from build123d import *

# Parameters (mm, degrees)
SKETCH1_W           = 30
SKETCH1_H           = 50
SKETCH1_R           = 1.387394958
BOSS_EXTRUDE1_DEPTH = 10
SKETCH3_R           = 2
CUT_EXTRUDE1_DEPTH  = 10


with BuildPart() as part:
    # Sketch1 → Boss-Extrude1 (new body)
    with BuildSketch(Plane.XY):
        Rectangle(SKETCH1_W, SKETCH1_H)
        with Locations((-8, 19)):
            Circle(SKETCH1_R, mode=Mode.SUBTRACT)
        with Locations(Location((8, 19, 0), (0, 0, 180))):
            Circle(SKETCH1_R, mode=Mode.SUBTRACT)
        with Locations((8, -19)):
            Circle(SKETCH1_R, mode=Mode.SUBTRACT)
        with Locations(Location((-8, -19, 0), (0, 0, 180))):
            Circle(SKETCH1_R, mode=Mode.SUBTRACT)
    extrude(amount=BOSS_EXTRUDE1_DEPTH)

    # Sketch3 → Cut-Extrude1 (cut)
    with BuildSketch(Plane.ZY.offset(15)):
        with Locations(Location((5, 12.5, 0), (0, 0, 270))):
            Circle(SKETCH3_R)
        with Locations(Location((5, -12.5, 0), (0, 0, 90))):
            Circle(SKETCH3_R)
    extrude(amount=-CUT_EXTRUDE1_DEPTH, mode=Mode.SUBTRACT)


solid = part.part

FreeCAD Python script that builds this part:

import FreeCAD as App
import Part
import Sketcher
from FreeCAD import Vector


def add_polygon(sketch, points):
    """Adds a closed chain of lines whose ends are joined by coincident constraints."""
    first, n = sketch.GeometryCount, len(points)
    for a, b in zip(points, points[1:] + points[:1]):
        sketch.addGeometry(Part.LineSegment(App.Vector(*a, 0), App.Vector(*b, 0)), False)
    for i in range(n):
        sketch.addConstraint(Sketcher.Constraint("Coincident", first + i, 2, first + (i + 1) % n, 1))

doc = App.newDocument("Part")
body = doc.addObject("PartDesign::Body", "Body")

sketch1 = body.newObject("Sketcher::SketchObject", "Sketch")
sketch1.AttachmentSupport = (doc.getObject("XY_Plane"), [""])
sketch1.MapMode = "FlatFace"
add_polygon(sketch1, [(-15, 25), (-15, -25), (15, -25), (15, 25)])
sketch1.addGeometry(Part.Circle(Vector(-8, -19, 0), Vector(0, 0, 1), 1.387395), False)
sketch1.addGeometry(Part.Circle(Vector(8, -19, 0), Vector(0, 0, 1), 1.387395), False)
sketch1.addGeometry(Part.Circle(Vector(-8, 19, 0), Vector(0, 0, 1), 1.387395), False)
sketch1.addGeometry(Part.Circle(Vector(8, 19, 0), Vector(0, 0, 1), 1.387395), False)
sketch1.addConstraint([
    Sketcher.Constraint("Vertical", 0),
    Sketcher.Constraint("Horizontal", 1),
    Sketcher.Constraint("Vertical", 2),
    Sketcher.Constraint("Horizontal", 3),
    Sketcher.Constraint("Equal", 4, 5),
    Sketcher.Constraint("Equal", 5, 6),
    Sketcher.Constraint("Equal", 6, 7),
    Sketcher.Constraint("Symmetric", 5, 3, 6, 3, -1, 1),
    Sketcher.Constraint("Symmetric", 4, 3, 7, 3, -1, 1),
    Sketcher.Constraint("Symmetric", 0, 2, 2, 2, -1, 1),
    Sketcher.Constraint("Symmetric", 4, 3, 5, 3, -2),
    Sketcher.Constraint("DistanceX", 1, 1, 1, 2, 30.0),
    Sketcher.Constraint("DistanceY", 0, 2, 0, 1, 50.0),
    Sketcher.Constraint("DistanceX", 4, 3, -1, 1, 8.0),
    Sketcher.Constraint("DistanceY", 4, 3, -1, 1, 19.0),
    Sketcher.Constraint("Diameter", 4, 2.77479),
])
pad1 = body.newObject("PartDesign::Pad", "Pad")
pad1.Profile = sketch1
pad1.Length = 10

sketch2 = body.newObject("Sketcher::SketchObject", "Sketch001")
sketch2.AttachmentSupport = (doc.getObject("YZ_Plane"), [""])
sketch2.MapMode = "FlatFace"
sketch2.AttachmentOffset = App.Placement(Vector(0, 0, -15), App.Rotation())
sketch2.addGeometry([
    Part.Circle(Vector(12.5, 5, 0), Vector(0, 0, 1), 2),
    Part.Circle(Vector(-12.5, 5, 0), Vector(0, 0, 1), 2),
], False)
sketch2.addConstraint([
    Sketcher.Constraint("Equal", 0, 1),
    Sketcher.Constraint("Symmetric", 0, 3, 1, 3, -2),
    Sketcher.Constraint("Diameter", 0, 4.0),
    Sketcher.Constraint("DistanceY", -1, 1, 0, 3, 5.0),
    Sketcher.Constraint("DistanceX", 1, 3, 0, 3, 25.0),
])
pocket1 = body.newObject("PartDesign::Pocket", "Pocket")
pocket1.Profile = sketch2
pocket1.Length = 10
pocket1.Reversed = True

doc.recompute()
